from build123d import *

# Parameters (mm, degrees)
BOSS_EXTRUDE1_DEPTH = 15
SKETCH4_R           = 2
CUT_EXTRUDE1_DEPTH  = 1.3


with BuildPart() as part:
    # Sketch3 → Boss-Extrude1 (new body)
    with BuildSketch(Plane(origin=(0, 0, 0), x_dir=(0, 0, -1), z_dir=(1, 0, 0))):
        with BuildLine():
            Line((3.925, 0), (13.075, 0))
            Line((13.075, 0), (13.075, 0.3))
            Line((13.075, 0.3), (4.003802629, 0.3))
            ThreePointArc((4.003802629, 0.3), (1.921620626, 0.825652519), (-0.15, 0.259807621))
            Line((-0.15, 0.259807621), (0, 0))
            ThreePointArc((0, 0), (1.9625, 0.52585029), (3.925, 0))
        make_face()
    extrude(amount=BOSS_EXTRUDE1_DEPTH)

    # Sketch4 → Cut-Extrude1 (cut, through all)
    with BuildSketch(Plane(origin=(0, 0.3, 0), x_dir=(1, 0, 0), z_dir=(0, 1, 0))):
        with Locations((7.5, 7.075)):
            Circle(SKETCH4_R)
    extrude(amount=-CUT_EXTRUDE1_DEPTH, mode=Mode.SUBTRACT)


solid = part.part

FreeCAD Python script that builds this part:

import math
import FreeCAD as App
import Part
import Sketcher

V = App.Vector
Q = App.Units.Quantity

doc = App.newDocument("Part")
params = doc.addObject("Spreadsheet::Sheet", "Params")
for row, (alias, value) in enumerate([
    ("sketch1_width", "0.3 mm"),
    ("sketch1_height", "9.15 mm"),
    ("pad1_length", "15 mm"),
    ("sketch2_diameter", "4 mm"),
], start=1):
    params.set(f"A{row}", alias)
    params.set(f"B{row}", "=" + value)
    params.setAlias(f"B{row}", alias)

body = doc.addObject("PartDesign::Body", "Body")

# Sketch on YZ plane
sketch1 = body.newObject("Sketcher::SketchObject", "Sketch")
sketch1.AttachmentSupport = (doc.getObject("YZ_Plane"), [""])
sketch1.MapMode = "FlatFace"
sketch1.addGeometry(Part.LineSegment(V(0, -3.925, 0), V(0, -13.075, 0)), False)
sketch1.addGeometry(Part.LineSegment(V(0, -13.075, 0), V(0.3, -13.075, 0)), False)
sketch1.addGeometry(Part.LineSegment(V(0.3, -13.075, 0), V(0.3, -4.003803, 0)), False)
sketch1.addGeometry(Part.ArcOfCircle(Part.Circle(V(-3.39915, -1.9625, 0), V(0, 0, 1), 4.225), math.radians(-28.891242), math.radians(30)), False)
sketch1.addGeometry(Part.LineSegment(V(0.259808, 0.15, 0), V(0, 0, 0)), False)
sketch1.addGeometry(Part.ArcOfCircle(Part.Circle(V(-3.39915, -1.9625, 0), V(0, 0, 1), 3.925), math.radians(-30), math.radians(30)), False)
sketch1.addConstraint(Sketcher.Constraint("Coincident", 0, 2, 1, 1))
sketch1.addConstraint(Sketcher.Constraint("Coincident", 1, 2, 2, 1))
sketch1.addConstraint(Sketcher.Constraint("Coincident", 2, 2, 3, 1))
sketch1.addConstraint(Sketcher.Constraint("Coincident", 3, 2, 4, 1))
sketch1.addConstraint(Sketcher.Constraint("Coincident", 4, 2, 5, 2))
sketch1.addConstraint(Sketcher.Constraint("Coincident", 5, 1, 0, 1))
sketch1.addConstraint(Sketcher.Constraint("Vertical", 0))
sketch1.addConstraint(Sketcher.Constraint("Horizontal", 1))
sketch1.addConstraint(Sketcher.Constraint("Vertical", 2))
sketch1.addConstraint(Sketcher.Constraint("Coincident", 4, 2, -1, 1))
sketch1.addConstraint(Sketcher.Constraint("Coincident", 5, 3, 3, 3))
sketch1.addConstraint(Sketcher.Constraint("PointOnObject", 0, 2, -2))
sketch1.addConstraint(Sketcher.Constraint("Angle", 4, Q("-150 deg")))
sketch1.addConstraint(Sketcher.Constraint("DistanceX", 1, 1, 1, 2, 0.3))
sketch1.addConstraint(Sketcher.Constraint("Radius", 3, 4.225))
sketch1.addConstraint(Sketcher.Constraint("Radius", 5, 3.925))
sketch1.addConstraint(Sketcher.Constraint("DistanceY", 0, 2, 0, 1, 9.15))
sketch1.addConstraint(Sketcher.Constraint("DistanceY", 0, 2, -1, 1, 13.075))
sketch1.setExpression("Constraints[13]", "Params.sketch1_width")
sketch1.setExpression("Constraints[16]", "Params.sketch1_height")
pad1 = body.newObject("PartDesign::Pad", "Pad")
pad1.Profile = sketch1
pad1.setExpression("Length", "Params.pad1_length")

# Sketch on XZ plane
sketch2 = body.newObject("Sketcher::SketchObject", "Sketch001")
sketch2.AttachmentSupport = (doc.getObject("XZ_Plane"), [""])
sketch2.MapMode = "FlatFace"
sketch2.AttachmentOffset = App.Placement(V(0, 0, -0.3), App.Rotation())
sketch2.addGeometry(Part.Circle(V(7.5, -7.075, 0), V(0, 0, 1), 2), False)
sketch2.addConstraint(Sketcher.Constraint("Diameter", 0, 4.0))
sketch2.addConstraint(Sketcher.Constraint("DistanceX", -1, 1, 0, 3, 7.5))
sketch2.addConstraint(Sketcher.Constraint("DistanceY", 0, 3, -1, 1, 7.075))
sketch2.setExpression("Constraints[0]", "Params.sketch2_diameter")
pocket1 = body.newObject("PartDesign::Pocket", "Pocket")
pocket1.Profile = sketch2
pocket1.Type = "ThroughAll"
pocket1.Reversed = True

doc.recompute()
